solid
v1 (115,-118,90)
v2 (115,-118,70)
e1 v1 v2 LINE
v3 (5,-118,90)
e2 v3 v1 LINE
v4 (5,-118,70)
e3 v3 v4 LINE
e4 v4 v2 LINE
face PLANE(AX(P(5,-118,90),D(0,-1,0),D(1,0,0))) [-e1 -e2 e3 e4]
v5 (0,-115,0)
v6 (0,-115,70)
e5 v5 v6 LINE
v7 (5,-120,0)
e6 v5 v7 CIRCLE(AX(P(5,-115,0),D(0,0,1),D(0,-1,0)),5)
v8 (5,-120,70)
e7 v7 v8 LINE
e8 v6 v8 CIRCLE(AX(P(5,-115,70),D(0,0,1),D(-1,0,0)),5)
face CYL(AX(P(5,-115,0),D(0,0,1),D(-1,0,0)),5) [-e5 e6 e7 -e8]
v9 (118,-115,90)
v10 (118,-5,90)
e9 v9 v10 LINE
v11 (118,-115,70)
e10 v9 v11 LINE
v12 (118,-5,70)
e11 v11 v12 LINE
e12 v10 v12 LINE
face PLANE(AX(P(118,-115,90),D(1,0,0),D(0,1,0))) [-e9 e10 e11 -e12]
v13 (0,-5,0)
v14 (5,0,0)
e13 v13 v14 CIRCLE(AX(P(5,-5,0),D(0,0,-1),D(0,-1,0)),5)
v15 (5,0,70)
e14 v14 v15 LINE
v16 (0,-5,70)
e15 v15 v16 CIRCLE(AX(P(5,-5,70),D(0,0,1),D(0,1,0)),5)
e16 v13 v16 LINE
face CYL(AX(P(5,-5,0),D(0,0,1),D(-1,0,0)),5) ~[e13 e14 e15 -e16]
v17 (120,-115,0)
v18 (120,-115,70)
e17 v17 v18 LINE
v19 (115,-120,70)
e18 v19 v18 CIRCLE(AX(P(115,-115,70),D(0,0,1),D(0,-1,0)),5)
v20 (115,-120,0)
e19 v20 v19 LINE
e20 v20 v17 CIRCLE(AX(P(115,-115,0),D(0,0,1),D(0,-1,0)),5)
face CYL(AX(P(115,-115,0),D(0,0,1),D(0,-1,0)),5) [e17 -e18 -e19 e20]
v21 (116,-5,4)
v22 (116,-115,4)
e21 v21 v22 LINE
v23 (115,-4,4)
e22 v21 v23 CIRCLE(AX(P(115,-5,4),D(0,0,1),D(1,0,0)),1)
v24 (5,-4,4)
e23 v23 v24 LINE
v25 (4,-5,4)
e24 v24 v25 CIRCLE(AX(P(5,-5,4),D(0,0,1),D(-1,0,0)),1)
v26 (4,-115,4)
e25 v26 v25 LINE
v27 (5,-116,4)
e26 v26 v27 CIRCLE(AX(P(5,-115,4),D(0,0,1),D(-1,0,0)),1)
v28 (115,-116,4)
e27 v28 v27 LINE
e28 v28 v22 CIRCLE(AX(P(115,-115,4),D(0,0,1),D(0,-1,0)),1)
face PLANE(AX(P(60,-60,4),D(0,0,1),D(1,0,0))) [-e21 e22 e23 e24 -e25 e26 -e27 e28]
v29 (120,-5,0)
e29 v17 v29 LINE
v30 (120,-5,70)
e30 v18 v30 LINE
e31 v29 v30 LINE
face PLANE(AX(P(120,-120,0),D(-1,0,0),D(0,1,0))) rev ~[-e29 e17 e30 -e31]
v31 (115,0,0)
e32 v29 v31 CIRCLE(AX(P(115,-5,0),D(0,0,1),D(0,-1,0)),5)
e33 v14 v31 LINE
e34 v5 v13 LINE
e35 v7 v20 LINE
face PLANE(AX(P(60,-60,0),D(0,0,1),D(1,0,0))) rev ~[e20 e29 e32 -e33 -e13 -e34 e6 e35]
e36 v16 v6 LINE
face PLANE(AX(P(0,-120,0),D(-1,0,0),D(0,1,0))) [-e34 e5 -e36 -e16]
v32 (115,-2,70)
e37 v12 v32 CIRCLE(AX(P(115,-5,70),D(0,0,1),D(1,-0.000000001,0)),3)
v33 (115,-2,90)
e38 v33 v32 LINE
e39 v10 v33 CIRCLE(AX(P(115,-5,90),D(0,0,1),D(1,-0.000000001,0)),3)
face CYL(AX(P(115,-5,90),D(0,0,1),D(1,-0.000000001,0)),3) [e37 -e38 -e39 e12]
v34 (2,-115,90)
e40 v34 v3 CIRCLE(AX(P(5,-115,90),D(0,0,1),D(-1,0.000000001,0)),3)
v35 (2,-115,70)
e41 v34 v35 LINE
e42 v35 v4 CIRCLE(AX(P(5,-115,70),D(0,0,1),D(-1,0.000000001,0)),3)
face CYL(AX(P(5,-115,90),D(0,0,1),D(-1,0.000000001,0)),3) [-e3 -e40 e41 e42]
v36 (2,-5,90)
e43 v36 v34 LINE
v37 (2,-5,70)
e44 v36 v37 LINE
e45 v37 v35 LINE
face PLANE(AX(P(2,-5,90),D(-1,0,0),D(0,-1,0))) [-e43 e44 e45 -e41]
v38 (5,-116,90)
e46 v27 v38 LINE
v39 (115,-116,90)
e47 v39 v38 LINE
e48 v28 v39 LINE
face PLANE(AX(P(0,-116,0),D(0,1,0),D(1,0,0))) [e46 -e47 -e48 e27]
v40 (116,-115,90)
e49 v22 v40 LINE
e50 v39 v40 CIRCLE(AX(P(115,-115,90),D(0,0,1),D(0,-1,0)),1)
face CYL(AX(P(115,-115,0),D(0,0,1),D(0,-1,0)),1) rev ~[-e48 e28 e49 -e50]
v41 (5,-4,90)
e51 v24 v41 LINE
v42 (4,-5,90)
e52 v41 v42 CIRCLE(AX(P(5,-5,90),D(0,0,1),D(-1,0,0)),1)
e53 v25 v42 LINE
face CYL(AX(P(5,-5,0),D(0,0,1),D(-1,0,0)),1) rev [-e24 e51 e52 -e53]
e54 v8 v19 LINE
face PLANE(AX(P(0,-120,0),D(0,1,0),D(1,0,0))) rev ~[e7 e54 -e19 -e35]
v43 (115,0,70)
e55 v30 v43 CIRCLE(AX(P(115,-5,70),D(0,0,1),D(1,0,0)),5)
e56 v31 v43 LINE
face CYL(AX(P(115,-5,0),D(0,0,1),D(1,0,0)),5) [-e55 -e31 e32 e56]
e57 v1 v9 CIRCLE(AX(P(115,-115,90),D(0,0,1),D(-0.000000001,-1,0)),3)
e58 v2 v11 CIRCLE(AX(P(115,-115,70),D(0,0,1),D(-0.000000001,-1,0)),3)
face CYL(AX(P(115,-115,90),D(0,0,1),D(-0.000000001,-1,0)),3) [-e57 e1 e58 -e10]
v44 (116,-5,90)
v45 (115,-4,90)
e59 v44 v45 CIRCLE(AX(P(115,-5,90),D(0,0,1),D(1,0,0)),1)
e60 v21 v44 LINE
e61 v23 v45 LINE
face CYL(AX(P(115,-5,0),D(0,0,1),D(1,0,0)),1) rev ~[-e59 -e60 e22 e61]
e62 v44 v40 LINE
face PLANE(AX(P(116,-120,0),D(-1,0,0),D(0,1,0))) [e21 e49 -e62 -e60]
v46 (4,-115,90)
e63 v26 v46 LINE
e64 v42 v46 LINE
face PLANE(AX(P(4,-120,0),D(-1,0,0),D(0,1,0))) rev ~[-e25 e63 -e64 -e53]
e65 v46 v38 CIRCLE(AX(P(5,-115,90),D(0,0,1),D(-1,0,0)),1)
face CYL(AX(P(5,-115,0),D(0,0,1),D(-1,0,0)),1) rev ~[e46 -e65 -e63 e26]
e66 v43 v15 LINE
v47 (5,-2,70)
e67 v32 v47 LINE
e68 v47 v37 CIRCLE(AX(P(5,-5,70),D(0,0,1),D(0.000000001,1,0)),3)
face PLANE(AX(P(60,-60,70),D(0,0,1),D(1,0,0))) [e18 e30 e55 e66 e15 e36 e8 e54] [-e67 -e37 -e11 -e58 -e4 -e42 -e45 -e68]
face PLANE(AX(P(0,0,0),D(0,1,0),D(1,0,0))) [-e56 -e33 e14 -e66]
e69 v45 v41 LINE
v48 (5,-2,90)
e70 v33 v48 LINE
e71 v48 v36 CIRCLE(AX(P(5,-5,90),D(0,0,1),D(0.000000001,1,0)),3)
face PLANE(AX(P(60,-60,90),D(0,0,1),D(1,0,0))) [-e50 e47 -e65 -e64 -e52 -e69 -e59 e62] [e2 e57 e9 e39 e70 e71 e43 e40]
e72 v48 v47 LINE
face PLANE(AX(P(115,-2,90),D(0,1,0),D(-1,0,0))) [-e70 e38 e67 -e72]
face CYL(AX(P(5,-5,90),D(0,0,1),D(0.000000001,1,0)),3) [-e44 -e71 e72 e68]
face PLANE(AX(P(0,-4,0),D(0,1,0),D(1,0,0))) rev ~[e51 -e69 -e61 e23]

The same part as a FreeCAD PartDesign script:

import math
import FreeCAD as App
import Part
import Sketcher
from FreeCAD import Vector


def edges_at(feature, points):
    """Names of the edges that pass closest to the given points."""
    edges = feature.Shape.Edges
    near = lambda p: min(range(len(edges)), key=lambda i: edges[i].distToShape(Part.Vertex(*p))[0])
    return sorted({f"Edge{near(p) + 1}" for p in points})


def faces_at(feature, points):
    """Names of the faces that lie closest to the given points."""
    faces = feature.Shape.Faces
    near = lambda p: min(range(len(faces)), key=lambda i: faces[i].distToShape(Part.Vertex(*p))[0])
    return sorted({f"Face{near(p) + 1}" for p in points})

doc = App.newDocument("Part")
params = doc.addObject("Spreadsheet::Sheet", "Params")
for row, (alias, value) in enumerate([
    ("sketch1_width", "120 mm"),
    ("pad1_length", "90 mm"),
    ("fillet_radius", "5 mm"),
    ("thickness_wall", "4 mm"),
    ("sketch2_radius", "5 mm"),
    ("sketch2_radius2", "3 mm"),
    ("sketch2_width", "110 mm"),
    ("pocket1_length", "20 mm"),
], start=1):
    params.set(f"A{row}", alias)
    params.set(f"B{row}", "=" + value)
    params.setAlias(f"B{row}", alias)

body = doc.addObject("PartDesign::Body", "Body")

# Sketch on XY plane
sketch1 = body.newObject("Sketcher::SketchObject", "Sketch")
sketch1.AttachmentSupport = (doc.getObject("XY_Plane"), [""])
sketch1.MapMode = "FlatFace"
sketch1.addGeometry([
    Part.LineSegment(Vector(0, 0, 0), Vector(0, -120, 0)),
    Part.LineSegment(Vector(0, -120, 0), Vector(120, -120, 0)),
    Part.LineSegment(Vector(120, -120, 0), Vector(120, 0, 0)),
    Part.LineSegment(Vector(120, 0, 0), Vector(0, 0, 0)),
], False)
sketch1.addConstraint([
    Sketcher.Constraint("Coincident", 0, 2, 1, 1),
    Sketcher.Constraint("Coincident", 1, 2, 2, 1),
    Sketcher.Constraint("Coincident", 2, 2, 3, 1),
    Sketcher.Constraint("Coincident", 3, 2, 0, 1),
    Sketcher.Constraint("Vertical", 0),
    Sketcher.Constraint("Horizontal", 1),
    Sketcher.Constraint("Vertical", 2),
    Sketcher.Constraint("Horizontal", 3),
    Sketcher.Constraint("Coincident", 3, 2, -1, 1),
    Sketcher.Constraint("Equal", 3, 0),
    Sketcher.Constraint("DistanceX", 1, 1, 1, 2, 120.0),
])
sketch1.setExpression("Constraints[10]", "Params.sketch1_width")
pad1 = body.newObject("PartDesign::Pad", "Pad")
pad1.Profile = sketch1
pad1.setExpression("Length", "Params.pad1_length")
doc.recompute()

fillet = body.newObject("PartDesign::Fillet", "Fillet")
fillet.Base = (pad1, edges_at(pad1, [
    (0, 0, 45),
    (120, 0, 45),
    (120, -120, 45),
    (0, -120, 45),
]))
fillet.setExpression("Radius", "Params.fillet_radius")
doc.recompute()

thickness = body.newObject("PartDesign::Thickness", "Thickness")
thickness.Base = (fillet, faces_at(fillet, [(60, -60, 90)]))
thickness.setExpression("Value", "Params.thickness_wall")
thickness.Reversed = True
thickness.Join = "Intersection"

# Sketch on XY plane
sketch2 = body.newObject("Sketcher::SketchObject", "Sketch001")
sketch2.AttachmentSupport = (doc.getObject("XY_Plane"), [""])
sketch2.MapMode = "FlatFace"
sketch2.AttachmentOffset = App.Placement(Vector(0, 0, 90), App.Rotation())
sketch2.addGeometry([
    Part.LineSegment(Vector(0, -5, 0), Vector(0, -115, 0)),  # 0
    Part.ArcOfCircle(Part.Circle(Vector(5, -115, 0), Vector(0, 0, 1), 5), math.radians(180), math.radians(270)),  # 1
    Part.LineSegment(Vector(5, -120, 0), Vector(115, -120, 0)),  # 2
    Part.ArcOfCircle(Part.Circle(Vector(115, -115, 0), Vector(0, 0, 1), 5), math.radians(-90), math.radians(0)),  # 3
    Part.LineSegment(Vector(120, -115, 0), Vector(120, -5, 0)),  # 4
    Part.ArcOfCircle(Part.Circle(Vector(115, -5, 0), Vector(0, 0, 1), 5), math.radians(0), math.radians(90)),  # 5
    Part.LineSegment(Vector(115, 0, 0), Vector(5, 0, 0)),  # 6
    Part.ArcOfCircle(Part.Circle(Vector(5, -5, 0), Vector(0, 0, 1), 5), math.radians(90), math.radians(180)),  # 7
    Part.LineSegment(Vector(2, -115, 0), Vector(2, -5, 0)),  # 8
    Part.ArcOfCircle(Part.Circle(Vector(5, -5, 0), Vector(0, 0, 1), 3), math.radians(90), math.radians(180)),  # 9
    Part.LineSegment(Vector(5, -2, 0), Vector(115, -2, 0)),  # 10
    Part.ArcOfCircle(Part.Circle(Vector(115, -5, 0), Vector(0, 0, 1), 3), math.radians(0), math.radians(90)),  # 11
    Part.LineSegment(Vector(118, -5, 0), Vector(118, -115, 0)),  # 12
    Part.ArcOfCircle(Part.Circle(Vector(115, -115, 0), Vector(0, 0, 1), 3), math.radians(-90), math.radians(0)),  # 13
    Part.LineSegment(Vector(115, -118, 0), Vector(5, -118, 0)),  # 14
    Part.ArcOfCircle(Part.Circle(Vector(5, -115, 0), Vector(0, 0, 1), 3), math.radians(180), math.radians(270)),  # 15
], False)
sketch2.addConstraint([
    Sketcher.Constraint("Tangent", 0, 2, 1, 1),
    Sketcher.Constraint("Tangent", 1, 2, 2, 1),
    Sketcher.Constraint("Tangent", 2, 2, 3, 1),
    Sketcher.Constraint("Tangent", 3, 2, 4, 1),
    Sketcher.Constraint("Tangent", 4, 2, 5, 1),
    Sketcher.Constraint("Tangent", 5, 2, 6, 1),
    Sketcher.Constraint("Tangent", 6, 2, 7, 1),
    Sketcher.Constraint("Tangent", 7, 2, 0, 1),
    Sketcher.Constraint("Tangent", 8, 2, 9, 2),
    Sketcher.Constraint("Tangent", 9, 1, 10, 1),
    Sketcher.Constraint("Tangent", 10, 2, 11, 2),
    Sketcher.Constraint("Tangent", 11, 1, 12, 1),
    Sketcher.Constraint("Tangent", 12, 2, 13, 2),
    Sketcher.Constraint("Tangent", 13, 1, 14, 1),
    Sketcher.Constraint("Tangent", 14, 2, 15, 2),
    Sketcher.Constraint("Tangent", 15, 1, 8, 1),
    Sketcher.Constraint("Vertical", 0),
    Sketcher.Constraint("Horizontal", 2),
    Sketcher.Constraint("Vertical", 4),
    Sketcher.Constraint("Horizontal", 6),
    Sketcher.Constraint("Vertical", 8),
    Sketcher.Constraint("Horizontal", 10),
    Sketcher.Constraint("Vertical", 12),
    Sketcher.Constraint("Horizontal", 14),
    Sketcher.Constraint("Coincident", 9, 3, 7, 3),
    Sketcher.Constraint("Coincident", 11, 3, 5, 3),
    Sketcher.Constraint("Coincident", 13, 3, 3, 3),
    Sketcher.Constraint("Equal", 1, 3),
    Sketcher.Constraint("Equal", 3, 5),
    Sketcher.Constraint("Equal", 5, 7),
    Sketcher.Constraint("Equal", 13, 15),
    Sketcher.Constraint("PointOnObject", 0, 2, -2),
    Sketcher.Constraint("PointOnObject", 5, 2, -1),
    Sketcher.Constraint("Equal", 14, 0),
    Sketcher.Constraint("Radius", 1, 5.0),
    Sketcher.Constraint("Radius", 9, 3.0),
    Sketcher.Constraint("DistanceX", 2, 1, 2, 2, 110.0),
])
sketch2.setExpression("Constraints[34]", "Params.sketch2_radius")
sketch2.setExpression("Constraints[35]", "Params.sketch2_radius2")
sketch2.setExpression("Constraints[36]", "Params.sketch2_width")
pocket1 = body.newObject("PartDesign::Pocket", "Pocket")
pocket1.Profile = sketch2
pocket1.setExpression("Length", "Params.pocket1_length")

doc.recompute()
